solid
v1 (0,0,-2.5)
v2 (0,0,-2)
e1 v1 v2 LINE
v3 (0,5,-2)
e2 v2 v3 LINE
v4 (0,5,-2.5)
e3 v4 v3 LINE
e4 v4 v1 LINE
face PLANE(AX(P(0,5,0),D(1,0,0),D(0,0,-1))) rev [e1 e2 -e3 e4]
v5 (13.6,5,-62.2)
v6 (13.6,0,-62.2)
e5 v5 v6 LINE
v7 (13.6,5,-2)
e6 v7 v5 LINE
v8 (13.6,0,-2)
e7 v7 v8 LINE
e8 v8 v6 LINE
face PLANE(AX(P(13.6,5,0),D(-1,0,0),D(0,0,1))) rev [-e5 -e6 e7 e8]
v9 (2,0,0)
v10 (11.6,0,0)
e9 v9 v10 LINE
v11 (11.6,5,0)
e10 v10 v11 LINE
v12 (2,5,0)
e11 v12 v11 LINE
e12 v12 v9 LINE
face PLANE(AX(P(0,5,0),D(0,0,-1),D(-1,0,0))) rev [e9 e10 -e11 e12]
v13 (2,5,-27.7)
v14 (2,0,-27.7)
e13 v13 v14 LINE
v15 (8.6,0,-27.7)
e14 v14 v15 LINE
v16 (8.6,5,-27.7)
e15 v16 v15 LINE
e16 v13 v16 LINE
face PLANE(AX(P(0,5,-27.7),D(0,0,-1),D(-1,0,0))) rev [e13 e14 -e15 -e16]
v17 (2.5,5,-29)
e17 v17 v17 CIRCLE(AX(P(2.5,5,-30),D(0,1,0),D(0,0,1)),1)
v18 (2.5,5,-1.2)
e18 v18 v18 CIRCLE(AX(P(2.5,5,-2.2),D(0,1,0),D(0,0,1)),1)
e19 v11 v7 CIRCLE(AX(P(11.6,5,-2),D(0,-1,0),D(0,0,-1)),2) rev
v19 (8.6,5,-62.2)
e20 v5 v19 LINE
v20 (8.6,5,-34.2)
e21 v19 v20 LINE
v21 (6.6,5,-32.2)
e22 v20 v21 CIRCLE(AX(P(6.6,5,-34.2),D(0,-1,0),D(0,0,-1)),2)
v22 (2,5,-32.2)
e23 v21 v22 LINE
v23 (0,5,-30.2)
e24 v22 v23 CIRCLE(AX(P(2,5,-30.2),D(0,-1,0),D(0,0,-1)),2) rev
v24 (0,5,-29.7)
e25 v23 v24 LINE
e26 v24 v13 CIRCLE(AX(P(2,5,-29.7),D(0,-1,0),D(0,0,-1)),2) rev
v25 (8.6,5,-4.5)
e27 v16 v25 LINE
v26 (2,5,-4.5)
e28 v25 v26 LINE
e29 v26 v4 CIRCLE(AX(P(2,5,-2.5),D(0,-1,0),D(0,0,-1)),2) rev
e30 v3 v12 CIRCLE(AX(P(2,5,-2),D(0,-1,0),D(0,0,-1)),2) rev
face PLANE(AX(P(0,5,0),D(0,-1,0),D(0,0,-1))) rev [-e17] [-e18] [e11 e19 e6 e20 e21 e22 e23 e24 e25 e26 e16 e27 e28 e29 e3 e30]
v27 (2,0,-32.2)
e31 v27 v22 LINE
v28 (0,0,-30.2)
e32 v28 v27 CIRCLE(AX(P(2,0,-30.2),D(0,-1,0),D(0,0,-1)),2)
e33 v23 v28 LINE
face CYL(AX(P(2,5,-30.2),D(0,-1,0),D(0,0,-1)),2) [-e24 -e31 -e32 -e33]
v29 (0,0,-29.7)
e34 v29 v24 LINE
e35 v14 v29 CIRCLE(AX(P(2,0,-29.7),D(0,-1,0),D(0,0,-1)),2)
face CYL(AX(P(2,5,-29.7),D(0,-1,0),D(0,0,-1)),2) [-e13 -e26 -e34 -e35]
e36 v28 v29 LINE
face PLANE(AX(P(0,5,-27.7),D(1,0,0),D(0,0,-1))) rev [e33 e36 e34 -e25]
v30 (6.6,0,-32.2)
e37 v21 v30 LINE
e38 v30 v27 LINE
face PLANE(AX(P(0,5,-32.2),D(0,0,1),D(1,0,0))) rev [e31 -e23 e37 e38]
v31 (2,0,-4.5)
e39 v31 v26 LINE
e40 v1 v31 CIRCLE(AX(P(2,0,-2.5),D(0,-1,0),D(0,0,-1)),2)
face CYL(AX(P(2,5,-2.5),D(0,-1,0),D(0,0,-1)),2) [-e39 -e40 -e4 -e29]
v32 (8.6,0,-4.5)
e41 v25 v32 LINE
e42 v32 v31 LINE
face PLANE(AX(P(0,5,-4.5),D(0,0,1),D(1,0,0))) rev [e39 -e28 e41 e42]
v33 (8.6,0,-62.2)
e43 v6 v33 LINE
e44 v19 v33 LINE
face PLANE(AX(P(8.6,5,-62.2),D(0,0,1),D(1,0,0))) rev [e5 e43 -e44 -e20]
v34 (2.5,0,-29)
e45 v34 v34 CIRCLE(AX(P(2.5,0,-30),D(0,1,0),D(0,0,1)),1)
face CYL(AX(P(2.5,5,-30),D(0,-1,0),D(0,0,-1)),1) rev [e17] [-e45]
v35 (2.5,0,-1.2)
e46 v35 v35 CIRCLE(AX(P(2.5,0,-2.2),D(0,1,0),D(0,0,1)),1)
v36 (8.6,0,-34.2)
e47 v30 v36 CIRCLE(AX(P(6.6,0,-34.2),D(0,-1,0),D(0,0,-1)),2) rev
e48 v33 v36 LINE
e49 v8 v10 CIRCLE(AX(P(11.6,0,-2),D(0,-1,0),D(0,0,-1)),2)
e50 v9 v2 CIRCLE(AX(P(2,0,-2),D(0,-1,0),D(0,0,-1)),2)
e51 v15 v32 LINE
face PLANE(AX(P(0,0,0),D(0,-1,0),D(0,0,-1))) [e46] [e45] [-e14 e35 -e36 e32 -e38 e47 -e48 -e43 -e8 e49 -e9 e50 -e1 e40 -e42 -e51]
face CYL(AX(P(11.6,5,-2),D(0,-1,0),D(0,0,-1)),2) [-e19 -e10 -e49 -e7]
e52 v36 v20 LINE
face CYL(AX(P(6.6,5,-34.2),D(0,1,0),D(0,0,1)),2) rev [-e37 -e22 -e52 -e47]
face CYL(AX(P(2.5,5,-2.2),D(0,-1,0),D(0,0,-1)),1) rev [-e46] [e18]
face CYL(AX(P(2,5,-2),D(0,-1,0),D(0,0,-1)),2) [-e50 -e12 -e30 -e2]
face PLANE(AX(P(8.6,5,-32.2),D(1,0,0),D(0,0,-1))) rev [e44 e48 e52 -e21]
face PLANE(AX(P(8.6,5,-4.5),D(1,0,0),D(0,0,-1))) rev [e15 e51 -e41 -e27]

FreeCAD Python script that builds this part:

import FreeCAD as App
import Part
import Sketcher


def edges_at(feature, points):
    """Names of the edges that pass closest to the given points."""
    edges = feature.Shape.Edges
    near = lambda p: min(range(len(edges)), key=lambda i: edges[i].distToShape(Part.Vertex(*p))[0])
    return sorted({f"Edge{near(p) + 1}" for p in points})

doc = App.newDocument("Part")
body = doc.addObject("PartDesign::Body", "Body")

sketch1 = body.newObject("Sketcher::SketchObject", "Sketch")
sketch1.AttachmentSupport = (doc.getObject("XZ_Plane"), [""])
sketch1.MapMode = "FlatFace"
sketch1.addGeometry(Part.LineSegment(App.Vector(8.6, -4.5, 0), App.Vector(0, -4.5, 0)), False)
sketch1.addGeometry(Part.LineSegment(App.Vector(0, -4.5, 0), App.Vector(0, 0, 0)), False)
sketch1.addGeometry(Part.LineSegment(App.Vector(0, 0, 0), App.Vector(13.6, 0, 0)), False)
sketch1.addGeometry(Part.LineSegment(App.Vector(13.6, 0, 0), App.Vector(13.6, -62.2, 0)), False)
sketch1.addGeometry(Part.LineSegment(App.Vector(13.6, -62.2, 0), App.Vector(8.6, -62.2, 0)), False)
sketch1.addGeometry(Part.LineSegment(App.Vector(8.6, -62.2, 0), App.Vector(8.6, -32.2, 0)), False)
sketch1.addGeometry(Part.LineSegment(App.Vector(8.6, -32.2, 0), App.Vector(0, -32.2, 0)), False)
sketch1.addGeometry(Part.LineSegment(App.Vector(0, -32.2, 0), App.Vector(0, -27.7, 0)), False)
sketch1.addGeometry(Part.LineSegment(App.Vector(0, -27.7, 0), App.Vector(8.6, -27.7, 0)), False)
sketch1.addGeometry(Part.LineSegment(App.Vector(8.6, -27.7, 0), App.Vector(8.6, -4.5, 0)), False)
sketch1.addGeometry(Part.Circle(App.Vector(2.5, -2.2, 0), App.Vector(0, 0, 1), 1), False)
sketch1.addGeometry(Part.Circle(App.Vector(2.5, -30, 0), App.Vector(0, 0, 1), 1), False)
sketch1.addConstraint(Sketcher.Constraint("Coincident", 0, 2, 1, 1))
sketch1.addConstraint(Sketcher.Constraint("Coincident", 1, 2, 2, 1))
sketch1.addConstraint(Sketcher.Constraint("Coincident", 2, 2, 3, 1))
sketch1.addConstraint(Sketcher.Constraint("Coincident", 3, 2, 4, 1))
sketch1.addConstraint(Sketcher.Constraint("Coincident", 4, 2, 5, 1))
sketch1.addConstraint(Sketcher.Constraint("Coincident", 5, 2, 6, 1))
sketch1.addConstraint(Sketcher.Constraint("Coincident", 6, 2, 7, 1))
sketch1.addConstraint(Sketcher.Constraint("Coincident", 7, 2, 8, 1))
sketch1.addConstraint(Sketcher.Constraint("Coincident", 8, 2, 9, 1))
sketch1.addConstraint(Sketcher.Constraint("Coincident", 9, 2, 0, 1))
sketch1.addConstraint(Sketcher.Constraint("Horizontal", 0))
sketch1.addConstraint(Sketcher.Constraint("Vertical", 1))
sketch1.addConstraint(Sketcher.Constraint("Horizontal", 2))
sketch1.addConstraint(Sketcher.Constraint("Vertical", 3))
sketch1.addConstraint(Sketcher.Constraint("Horizontal", 4))
sketch1.addConstraint(Sketcher.Constraint("Vertical", 5))
sketch1.addConstraint(Sketcher.Constraint("Horizontal", 6))
sketch1.addConstraint(Sketcher.Constraint("Vertical", 7))
sketch1.addConstraint(Sketcher.Constraint("Horizontal", 8))
sketch1.addConstraint(Sketcher.Constraint("Vertical", 9))
sketch1.addConstraint(Sketcher.Constraint("Coincident", 1, 2, -1, 1))
sketch1.addConstraint(Sketcher.Constraint("Equal", 10, 11))
sketch1.addConstraint(Sketcher.Constraint("PointOnObject", 6, 2, -2))
sketch1.addConstraint(Sketcher.Constraint("Vertical", 10, 3, 11, 3))
sketch1.addConstraint(Sketcher.Constraint("Vertical", 5, 2, 8, 2))
sketch1.addConstraint(Sketcher.Constraint("Equal", 1, 7))
sketch1.addConstraint(Sketcher.Constraint("Diameter", 10, 2.0))
sketch1.addConstraint(Sketcher.Constraint("DistanceX", 4, 2, 4, 1, 5.0))
sketch1.addConstraint(Sketcher.Constraint("DistanceY", 5, 1, 5, 2, 30.0))
sketch1.addConstraint(Sketcher.Constraint("DistanceX", 0, 2, 0, 1, 8.6))
sketch1.addConstraint(Sketcher.Constraint("DistanceY", 1, 1, 1, 2, 4.5))
sketch1.addConstraint(Sketcher.Constraint("DistanceY", 3, 2, 3, 1, 62.2))
sketch1.addConstraint(Sketcher.Constraint("DistanceY", 11, 3, -1, 1, 30.0))
sketch1.addConstraint(Sketcher.Constraint("DistanceY", 3, 2, 10, 3, 60.0))
sketch1.addConstraint(Sketcher.Constraint("DistanceX", -1, 1, 10, 3, 2.5))
pad1 = body.newObject("PartDesign::Pad", "Pad")
pad1.Profile = sketch1
pad1.Length = 5
pad1.Reversed = True
doc.recompute()

fillet = body.newObject("PartDesign::Fillet", "Fillet")
fillet.Base = (pad1, edges_at(pad1, [
    (0, 2.5, -4.5),
    (0, 2.5, -27.7),
    (0, 2.5, -32.2),
    (8.6, 2.5, -32.2),
    (13.6, 2.5, 0),
    (0, 2.5, 0),
]))
fillet.Radius = 2

doc.recompute()
